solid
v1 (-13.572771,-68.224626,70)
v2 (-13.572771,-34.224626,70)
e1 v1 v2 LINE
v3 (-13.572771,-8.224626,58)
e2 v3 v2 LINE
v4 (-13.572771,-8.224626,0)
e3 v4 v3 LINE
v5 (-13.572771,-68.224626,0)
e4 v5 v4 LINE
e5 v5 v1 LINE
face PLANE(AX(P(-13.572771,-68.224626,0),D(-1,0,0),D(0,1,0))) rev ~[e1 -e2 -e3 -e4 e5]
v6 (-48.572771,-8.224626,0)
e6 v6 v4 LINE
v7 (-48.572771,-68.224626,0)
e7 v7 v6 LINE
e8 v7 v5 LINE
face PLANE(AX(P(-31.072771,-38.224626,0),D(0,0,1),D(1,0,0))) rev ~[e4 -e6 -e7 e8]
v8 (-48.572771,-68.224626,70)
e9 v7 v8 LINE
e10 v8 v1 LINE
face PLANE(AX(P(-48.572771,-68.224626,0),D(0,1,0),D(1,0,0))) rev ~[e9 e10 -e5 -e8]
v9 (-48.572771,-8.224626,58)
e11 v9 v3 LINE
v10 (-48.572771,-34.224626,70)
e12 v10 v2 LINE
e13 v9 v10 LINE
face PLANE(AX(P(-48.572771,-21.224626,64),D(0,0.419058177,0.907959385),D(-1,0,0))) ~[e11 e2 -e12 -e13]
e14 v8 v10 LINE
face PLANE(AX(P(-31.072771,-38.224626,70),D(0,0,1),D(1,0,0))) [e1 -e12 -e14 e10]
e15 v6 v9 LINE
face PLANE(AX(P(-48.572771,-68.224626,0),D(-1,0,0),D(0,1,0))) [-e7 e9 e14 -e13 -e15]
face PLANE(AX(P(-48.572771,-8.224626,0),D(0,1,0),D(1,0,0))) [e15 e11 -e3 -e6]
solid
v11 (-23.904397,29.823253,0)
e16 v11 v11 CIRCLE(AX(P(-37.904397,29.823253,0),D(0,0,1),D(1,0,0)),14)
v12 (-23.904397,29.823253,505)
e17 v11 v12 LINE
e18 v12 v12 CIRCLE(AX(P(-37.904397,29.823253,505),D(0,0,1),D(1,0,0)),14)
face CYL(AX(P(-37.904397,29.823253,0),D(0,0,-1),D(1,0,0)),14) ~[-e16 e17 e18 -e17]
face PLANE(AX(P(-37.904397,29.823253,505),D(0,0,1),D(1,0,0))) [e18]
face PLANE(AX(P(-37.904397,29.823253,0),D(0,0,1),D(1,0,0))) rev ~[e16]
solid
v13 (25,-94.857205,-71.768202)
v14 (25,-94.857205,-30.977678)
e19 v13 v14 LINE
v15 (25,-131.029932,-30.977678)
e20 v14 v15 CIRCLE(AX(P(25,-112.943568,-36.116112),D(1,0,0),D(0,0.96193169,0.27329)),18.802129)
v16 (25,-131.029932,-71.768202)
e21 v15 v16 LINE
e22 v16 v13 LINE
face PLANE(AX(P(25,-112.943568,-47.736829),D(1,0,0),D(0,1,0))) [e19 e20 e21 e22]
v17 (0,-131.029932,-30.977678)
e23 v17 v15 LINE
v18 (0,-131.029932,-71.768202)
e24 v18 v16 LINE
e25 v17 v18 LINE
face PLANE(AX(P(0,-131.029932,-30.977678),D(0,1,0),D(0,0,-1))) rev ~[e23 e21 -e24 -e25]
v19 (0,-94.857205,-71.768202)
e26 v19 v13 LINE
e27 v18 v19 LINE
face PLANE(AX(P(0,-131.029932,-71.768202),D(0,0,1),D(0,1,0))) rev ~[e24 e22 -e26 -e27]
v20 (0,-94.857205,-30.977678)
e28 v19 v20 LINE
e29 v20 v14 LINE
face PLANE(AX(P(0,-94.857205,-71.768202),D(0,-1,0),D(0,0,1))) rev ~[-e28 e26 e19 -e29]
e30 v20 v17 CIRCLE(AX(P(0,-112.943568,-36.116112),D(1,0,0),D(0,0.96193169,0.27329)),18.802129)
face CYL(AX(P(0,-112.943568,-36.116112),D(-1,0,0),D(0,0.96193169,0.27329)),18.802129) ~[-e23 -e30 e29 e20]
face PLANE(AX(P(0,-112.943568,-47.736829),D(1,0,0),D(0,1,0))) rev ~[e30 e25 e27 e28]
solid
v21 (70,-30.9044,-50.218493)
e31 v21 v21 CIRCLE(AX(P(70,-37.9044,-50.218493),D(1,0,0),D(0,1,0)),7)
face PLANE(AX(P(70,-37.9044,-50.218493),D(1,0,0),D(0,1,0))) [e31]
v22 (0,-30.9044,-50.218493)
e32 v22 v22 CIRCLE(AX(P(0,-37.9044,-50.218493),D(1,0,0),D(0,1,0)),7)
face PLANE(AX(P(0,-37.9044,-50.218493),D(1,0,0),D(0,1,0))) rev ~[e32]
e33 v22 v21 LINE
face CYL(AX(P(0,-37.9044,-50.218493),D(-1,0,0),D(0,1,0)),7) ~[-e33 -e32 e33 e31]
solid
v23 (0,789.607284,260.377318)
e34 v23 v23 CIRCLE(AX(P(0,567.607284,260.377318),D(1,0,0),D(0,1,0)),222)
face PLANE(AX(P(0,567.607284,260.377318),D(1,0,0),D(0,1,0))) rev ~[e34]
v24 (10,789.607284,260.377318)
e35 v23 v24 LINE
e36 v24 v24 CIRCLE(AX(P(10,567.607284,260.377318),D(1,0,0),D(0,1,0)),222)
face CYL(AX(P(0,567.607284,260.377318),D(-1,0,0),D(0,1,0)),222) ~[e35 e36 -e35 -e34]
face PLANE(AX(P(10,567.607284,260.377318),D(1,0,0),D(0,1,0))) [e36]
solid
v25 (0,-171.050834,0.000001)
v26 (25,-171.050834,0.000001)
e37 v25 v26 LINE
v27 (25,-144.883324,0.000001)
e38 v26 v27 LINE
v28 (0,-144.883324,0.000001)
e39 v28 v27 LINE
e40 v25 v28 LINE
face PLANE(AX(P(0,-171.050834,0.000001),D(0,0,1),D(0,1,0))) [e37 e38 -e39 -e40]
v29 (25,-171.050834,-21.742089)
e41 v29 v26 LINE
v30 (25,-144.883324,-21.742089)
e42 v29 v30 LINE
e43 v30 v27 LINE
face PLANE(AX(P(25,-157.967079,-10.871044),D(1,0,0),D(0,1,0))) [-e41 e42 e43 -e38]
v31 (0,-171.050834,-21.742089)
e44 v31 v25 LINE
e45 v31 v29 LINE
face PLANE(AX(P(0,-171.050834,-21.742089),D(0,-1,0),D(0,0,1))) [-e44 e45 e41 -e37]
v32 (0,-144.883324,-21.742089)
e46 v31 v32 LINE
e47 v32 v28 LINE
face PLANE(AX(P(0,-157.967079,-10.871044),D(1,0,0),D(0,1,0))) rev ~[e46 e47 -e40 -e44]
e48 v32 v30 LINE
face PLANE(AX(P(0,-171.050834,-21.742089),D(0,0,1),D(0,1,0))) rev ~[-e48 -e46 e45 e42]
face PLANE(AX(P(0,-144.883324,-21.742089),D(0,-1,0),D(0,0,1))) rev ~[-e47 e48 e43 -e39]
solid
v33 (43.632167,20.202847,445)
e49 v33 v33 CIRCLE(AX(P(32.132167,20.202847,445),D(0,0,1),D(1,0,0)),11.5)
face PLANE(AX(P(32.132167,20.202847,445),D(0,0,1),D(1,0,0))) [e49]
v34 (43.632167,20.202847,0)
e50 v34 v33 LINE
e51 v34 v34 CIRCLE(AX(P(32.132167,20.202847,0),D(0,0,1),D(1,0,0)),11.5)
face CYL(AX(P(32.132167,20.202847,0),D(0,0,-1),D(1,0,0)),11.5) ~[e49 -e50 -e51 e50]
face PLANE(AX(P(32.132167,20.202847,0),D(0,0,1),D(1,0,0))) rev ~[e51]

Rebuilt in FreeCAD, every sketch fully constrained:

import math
import FreeCAD as App
import Part
import Sketcher


def edges_at(feature, points):
    """Names of the edges that pass closest to the given points."""
    edges = feature.Shape.Edges
    near = lambda p: min(range(len(edges)), key=lambda i: edges[i].distToShape(Part.Vertex(*p))[0])
    return sorted({f"Edge{near(p) + 1}" for p in points})

doc = App.newDocument("Part")
params = doc.addObject("Spreadsheet::Sheet", "Params")
for row, (alias, value) in enumerate([
    ("sketch1_diameter", "28 mm"),
    ("pad1_length", "505 mm"),
    ("sketch2_diameter", "23 mm"),
    ("pad2_length", "445 mm"),
    ("sketch3_width", "35 mm"),
    ("sketch3_height", "60 mm"),
    ("pad3_length", "70 mm"),
    ("chamfer_size", "12 mm"),
    ("chamfer_size2", "26 mm"),
    ("sketch4_diameter", "14 mm"),
    ("pad4_length", "70 mm"),
    ("pad5_length", "25 mm"),
    ("pad6_length", "25 mm"),
    ("sketch7_diameter", "444 mm"),
    ("pad7_length", "10 mm"),
], start=1):
    params.set(f"A{row}", alias)
    params.set(f"B{row}", "=" + value)
    params.setAlias(f"B{row}", alias)

body = doc.addObject("PartDesign::Body", "Body")

# Sketch on XY plane
sketch1 = body.newObject("Sketcher::SketchObject", "Sketch")
sketch1.AttachmentSupport = (doc.getObject("XY_Plane"), [""])
sketch1.MapMode = "FlatFace"
sketch1.addGeometry(Part.Circle(App.Vector(-38, 30, 0), App.Vector(0, 0, 1), 14), False)
sketch1.addConstraint([
    Sketcher.Constraint("Diameter", 0, 28.0),
    Sketcher.Constraint("DistanceX", 0, 3, -1, 1, 37.904397),
    Sketcher.Constraint("DistanceY", -1, 1, 0, 3, 29.823253),
])
sketch1.setExpression("Constraints[0]", "Params.sketch1_diameter")
pad1 = body.newObject("PartDesign::Pad", "Pad")
pad1.Profile = sketch1
pad1.setExpression("Length", "Params.pad1_length")
body2 = doc.addObject("PartDesign::Body", "Body001")

# Sketch on XY plane
sketch2 = body2.newObject("Sketcher::SketchObject", "Sketch001")
sketch2.AttachmentSupport = (doc.getObject("XY_Plane001"), [""])
sketch2.MapMode = "FlatFace"
sketch2.addGeometry(Part.Circle(App.Vector(32, 20, 0), App.Vector(0, 0, 1), 12), False)
sketch2.addConstraint([
    Sketcher.Constraint("Diameter", 0, 23.0),
    Sketcher.Constraint("DistanceX", -1, 1, 0, 3, 32.132167),
    Sketcher.Constraint("DistanceY", -1, 1, 0, 3, 20.202847),
])
sketch2.setExpression("Constraints[0]", "Params.sketch2_diameter")
pad2 = body2.newObject("PartDesign::Pad", "Pad001")
pad2.Profile = sketch2
pad2.setExpression("Length", "Params.pad2_length")
body3 = doc.addObject("PartDesign::Body", "Body002")

# Sketch on XY plane
sketch3 = body3.newObject("Sketcher::SketchObject", "Sketch002")
sketch3.AttachmentSupport = (doc.getObject("XY_Plane002"), [""])
sketch3.MapMode = "FlatFace"
sketch3.addGeometry([
    Part.LineSegment(App.Vector(-49, -8, 0), App.Vector(-49, -68, 0)),
    Part.LineSegment(App.Vector(-49, -68, 0), App.Vector(-14, -68, 0)),
    Part.LineSegment(App.Vector(-14, -68, 0), App.Vector(-14, -8, 0)),
    Part.LineSegment(App.Vector(-14, -8, 0), App.Vector(-49, -8, 0)),
], False)
sketch3.addConstraint([
    Sketcher.Constraint("Coincident", 0, 2, 1, 1),
    Sketcher.Constraint("Coincident", 1, 2, 2, 1),
    Sketcher.Constraint("Coincident", 2, 2, 3, 1),
    Sketcher.Constraint("Coincident", 3, 2, 0, 1),
    Sketcher.Constraint("Vertical", 0),
    Sketcher.Constraint("Horizontal", 1),
    Sketcher.Constraint("Vertical", 2),
    Sketcher.Constraint("Horizontal", 3),
    Sketcher.Constraint("DistanceX", 1, 1, 1, 2, 35.0),
    Sketcher.Constraint("DistanceY", 0, 2, 0, 1, 60.0),
    Sketcher.Constraint("DistanceX", 0, 2, -1, 1, 48.572771),
    Sketcher.Constraint("DistanceY", 0, 2, -1, 1, 68.224626),
])
sketch3.setExpression("Constraints[8]", "Params.sketch3_width")
sketch3.setExpression("Constraints[9]", "Params.sketch3_height")
pad3 = body3.newObject("PartDesign::Pad", "Pad002")
pad3.Profile = sketch3
pad3.setExpression("Length", "Params.pad3_length")
doc.recompute()

chamfer = body3.newObject("PartDesign::Chamfer", "Chamfer")
chamfer.Base = (pad3, edges_at(pad3, [(-31.073, -8.225, 70)]))
chamfer.ChamferType = "Two distances"
chamfer.setExpression("Size", "Params.chamfer_size")
chamfer.setExpression("Size2", "Params.chamfer_size2")
body4 = doc.addObject("PartDesign::Body", "Body003")

# Sketch on YZ plane
sketch4 = body4.newObject("Sketcher::SketchObject", "Sketch003")
sketch4.AttachmentSupport = (doc.getObject("YZ_Plane003"), [""])
sketch4.MapMode = "FlatFace"
sketch4.addGeometry(Part.Circle(App.Vector(-38, -50, 0), App.Vector(0, 0, 1), 7), False)
sketch4.addConstraint([
    Sketcher.Constraint("Diameter", 0, 14.0),
    Sketcher.Constraint("DistanceX", 0, 3, -1, 1, 37.9044),
    Sketcher.Constraint("DistanceY", 0, 3, -1, 1, 50.218493),
])
sketch4.setExpression("Constraints[0]", "Params.sketch4_diameter")
pad4 = body4.newObject("PartDesign::Pad", "Pad003")
pad4.Profile = sketch4
pad4.setExpression("Length", "Params.pad4_length")
body5 = doc.addObject("PartDesign::Body", "Body004")

# Sketch on YZ plane
sketch5 = body5.newObject("Sketcher::SketchObject", "Sketch004")
sketch5.AttachmentSupport = (doc.getObject("YZ_Plane004"), [""])
sketch5.MapMode = "FlatFace"
sketch5.addGeometry([
    Part.LineSegment(App.Vector(-131, -31, 0), App.Vector(-131, -72, 0)),
    Part.LineSegment(App.Vector(-131, -72, 0), App.Vector(-95, -72, 0)),
    Part.LineSegment(App.Vector(-95, -72, 0), App.Vector(-95, -31, 0)),
    Part.ArcOfCircle(Part.Circle(App.Vector(-113, -36, 0), App.Vector(0, 0, 1), 19), math.radians(16), math.radians(164)),
], False)
sketch5.addConstraint([
    Sketcher.Constraint("Coincident", 0, 2, 1, 1),
    Sketcher.Constraint("Coincident", 1, 2, 2, 1),
    Sketcher.Constraint("Coincident", 2, 2, 3, 1),
    Sketcher.Constraint("Coincident", 3, 2, 0, 1),
    Sketcher.Constraint("Vertical", 0),
    Sketcher.Constraint("Horizontal", 1),
    Sketcher.Constraint("Vertical", 2),
    Sketcher.Constraint("Horizontal", 2, 2, 3, 2),
    Sketcher.Constraint("Radius", 3, 18.802129),
    Sketcher.Constraint("DistanceX", 1, 1, 1, 2, 36.172727),
    Sketcher.Constraint("DistanceY", 0, 2, 0, 1, 40.790524),
    Sketcher.Constraint("DistanceX", 3, 3, -1, 1, 112.943568),
    Sketcher.Constraint("DistanceY", 3, 3, -1, 1, 36.116112),
])
pad5 = body5.newObject("PartDesign::Pad", "Pad004")
pad5.Profile = sketch5
pad5.setExpression("Length", "Params.pad5_length")
body6 = doc.addObject("PartDesign::Body", "Body005")

# Sketch on YZ plane
sketch6 = body6.newObject("Sketcher::SketchObject", "Sketch005")
sketch6.AttachmentSupport = (doc.getObject("YZ_Plane005"), [""])
sketch6.MapMode = "FlatFace"
sketch6.addGeometry([
    Part.LineSegment(App.Vector(-171, 0, 0), App.Vector(-171, -22, 0)),
    Part.LineSegment(App.Vector(-171, -22, 0), App.Vector(-145, -22, 0)),
    Part.LineSegment(App.Vector(-145, -22, 0), App.Vector(-145, 0, 0)),
    Part.LineSegment(App.Vector(-145, 0, 0), App.Vector(-171, 0, 0)),
], False)
sketch6.addConstraint([
    Sketcher.Constraint("Coincident", 0, 2, 1, 1),
    Sketcher.Constraint("Coincident", 1, 2, 2, 1),
    Sketcher.Constraint("Coincident", 2, 2, 3, 1),
    Sketcher.Constraint("Coincident", 3, 2, 0, 1),
    Sketcher.Constraint("Vertical", 0),
    Sketcher.Constraint("Horizontal", 1),
    Sketcher.Constraint("Vertical", 2),
    Sketcher.Constraint("Horizontal", 3),
    Sketcher.Constraint("PointOnObject", 2, 2, -1),
    Sketcher.Constraint("DistanceX", 1, 1, 1, 2, 26.167509),
    Sketcher.Constraint("DistanceY", 0, 2, 0, 1, 21.742089),
    Sketcher.Constraint("DistanceX", 0, 2, -1, 1, 171.050834),
])
pad6 = body6.newObject("PartDesign::Pad", "Pad005")
pad6.Profile = sketch6
pad6.setExpression("Length", "Params.pad6_length")
body7 = doc.addObject("PartDesign::Body", "Body006")

# Sketch on YZ plane
sketch7 = body7.newObject("Sketcher::SketchObject", "Sketch006")
sketch7.AttachmentSupport = (doc.getObject("YZ_Plane006"), [""])
sketch7.MapMode = "FlatFace"
sketch7.addGeometry(Part.Circle(App.Vector(568, 260, 0), App.Vector(0, 0, 1), 222), False)
sketch7.addConstraint([
    Sketcher.Constraint("Diameter", 0, 444.0),
    Sketcher.Constraint("DistanceY", -1, 1, 0, 3, 260.377318),
    Sketcher.Constraint("DistanceX", -1, 1, 0, 3, 567.607284),
])
sketch7.setExpression("Constraints[0]", "Params.sketch7_diameter")
pad7 = body7.newObject("PartDesign::Pad", "Pad006")
pad7.Profile = sketch7
pad7.setExpression("Length", "Params.pad7_length")

doc.recompute()
